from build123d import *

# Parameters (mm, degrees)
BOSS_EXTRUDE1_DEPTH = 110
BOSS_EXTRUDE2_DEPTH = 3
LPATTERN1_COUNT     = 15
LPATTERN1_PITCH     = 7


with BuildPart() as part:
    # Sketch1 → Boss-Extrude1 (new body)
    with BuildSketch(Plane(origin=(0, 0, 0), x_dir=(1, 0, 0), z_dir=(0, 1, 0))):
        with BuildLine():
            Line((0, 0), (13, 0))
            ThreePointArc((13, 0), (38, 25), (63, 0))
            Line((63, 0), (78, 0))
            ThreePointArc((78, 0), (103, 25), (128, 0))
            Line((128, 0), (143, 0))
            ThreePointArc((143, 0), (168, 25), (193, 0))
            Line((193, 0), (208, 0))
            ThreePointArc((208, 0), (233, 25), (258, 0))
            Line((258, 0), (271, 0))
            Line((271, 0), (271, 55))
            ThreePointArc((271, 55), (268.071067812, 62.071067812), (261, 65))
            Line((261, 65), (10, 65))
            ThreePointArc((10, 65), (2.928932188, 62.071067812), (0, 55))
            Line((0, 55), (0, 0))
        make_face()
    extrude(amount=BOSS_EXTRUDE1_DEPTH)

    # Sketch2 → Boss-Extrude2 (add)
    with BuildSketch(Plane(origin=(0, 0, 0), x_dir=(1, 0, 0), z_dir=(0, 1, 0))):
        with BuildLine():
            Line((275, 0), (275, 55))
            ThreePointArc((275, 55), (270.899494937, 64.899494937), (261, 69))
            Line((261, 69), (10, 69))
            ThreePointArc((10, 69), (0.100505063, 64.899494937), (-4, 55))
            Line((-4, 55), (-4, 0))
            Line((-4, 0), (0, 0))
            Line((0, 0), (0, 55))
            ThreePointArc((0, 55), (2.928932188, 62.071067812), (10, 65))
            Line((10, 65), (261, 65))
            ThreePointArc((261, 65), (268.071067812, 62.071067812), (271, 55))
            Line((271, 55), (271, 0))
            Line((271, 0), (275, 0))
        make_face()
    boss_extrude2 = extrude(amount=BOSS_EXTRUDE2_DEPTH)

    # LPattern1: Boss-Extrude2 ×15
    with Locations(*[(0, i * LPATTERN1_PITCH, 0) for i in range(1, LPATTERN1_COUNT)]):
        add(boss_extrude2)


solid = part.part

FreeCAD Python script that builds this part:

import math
import FreeCAD as App
import Part
import Sketcher
from FreeCAD import Vector
Q = App.Units.Quantity

doc = App.newDocument("Part")
body = doc.addObject("PartDesign::Body", "Body")

# Sketch on XZ plane
sketch1 = body.newObject("Sketcher::SketchObject", "Sketch")
sketch1.AttachmentSupport = (doc.getObject("XZ_Plane"), [""])
sketch1.MapMode = "FlatFace"
sketch1.addGeometry([
    Part.LineSegment(Vector(0, 0, 0), Vector(13, 0, 0)),  # 0
    Part.ArcOfCircle(Part.Circle(Vector(38, 0, 0), Vector(0, 0, 1), 25), math.radians(180), math.radians(360)),  # 1
    Part.LineSegment(Vector(63, 0, 0), Vector(78, 0, 0)),  # 2
    Part.ArcOfCircle(Part.Circle(Vector(103, 0, 0), Vector(0, 0, 1), 25), math.radians(180), math.radians(360)),  # 3
    Part.LineSegment(Vector(128, 0, 0), Vector(143, 0, 0)),  # 4
    Part.ArcOfCircle(Part.Circle(Vector(168, 0, 0), Vector(0, 0, 1), 25), math.radians(180), math.radians(360)),  # 5
    Part.LineSegment(Vector(193, 0, 0), Vector(208, 0, 0)),  # 6
    Part.ArcOfCircle(Part.Circle(Vector(233, 0, 0), Vector(0, 0, 1), 25), math.radians(180), math.radians(360)),  # 7
    Part.LineSegment(Vector(258, 0, 0), Vector(271, 0, 0)),  # 8
    Part.LineSegment(Vector(271, 0, 0), Vector(271, -55, 0)),  # 9
    Part.ArcOfCircle(Part.Circle(Vector(261, -55, 0), Vector(0, 0, 1), 10), math.radians(-90), math.radians(0)),  # 10
    Part.LineSegment(Vector(261, -65, 0), Vector(10, -65, 0)),  # 11
    Part.ArcOfCircle(Part.Circle(Vector(10, -55, 0), Vector(0, 0, 1), 10), math.radians(180), math.radians(270)),  # 12
    Part.LineSegment(Vector(0, -55, 0), Vector(0, 0, 0)),  # 13
], False)
sketch1.addConstraint([
    Sketcher.Constraint("Coincident", 0, 2, 1, 1),
    Sketcher.Constraint("Coincident", 1, 2, 2, 1),
    Sketcher.Constraint("Coincident", 2, 2, 3, 1),
    Sketcher.Constraint("Coincident", 3, 2, 4, 1),
    Sketcher.Constraint("Coincident", 4, 2, 5, 1),
    Sketcher.Constraint("Coincident", 5, 2, 6, 1),
    Sketcher.Constraint("Coincident", 6, 2, 7, 1),
    Sketcher.Constraint("Coincident", 7, 2, 8, 1),
    Sketcher.Constraint("Coincident", 8, 2, 9, 1),
    Sketcher.Constraint("Tangent", 9, 2, 10, 2),
    Sketcher.Constraint("Tangent", 10, 1, 11, 1),
    Sketcher.Constraint("Tangent", 11, 2, 12, 2),
    Sketcher.Constraint("Tangent", 12, 1, 13, 1),
    Sketcher.Constraint("Coincident", 13, 2, 0, 1),
    Sketcher.Constraint("Horizontal", 0),
    Sketcher.Constraint("Horizontal", 2),
    Sketcher.Constraint("Horizontal", 4),
    Sketcher.Constraint("Horizontal", 6),
    Sketcher.Constraint("Horizontal", 8),
    Sketcher.Constraint("Vertical", 9),
    Sketcher.Constraint("Horizontal", 11),
    Sketcher.Constraint("Vertical", 13),
    Sketcher.Constraint("Coincident", 13, 2, -1, 1),
    Sketcher.Constraint("Equal", 1, 3),
    Sketcher.Constraint("Equal", 3, 5),
    Sketcher.Constraint("Equal", 5, 7),
    Sketcher.Constraint("Equal", 10, 12),
    Sketcher.Constraint("PointOnObject", 1, 3, -1),
    Sketcher.Constraint("PointOnObject", 3, 3, -1),
    Sketcher.Constraint("PointOnObject", 5, 3, -1),
    Sketcher.Constraint("PointOnObject", 7, 3, -1),
    Sketcher.Constraint("PointOnObject", 1, 2, -1),
    Sketcher.Constraint("PointOnObject", 3, 2, -1),
    Sketcher.Constraint("PointOnObject", 5, 2, -1),
    Sketcher.Constraint("PointOnObject", 7, 2, -1),
    Sketcher.Constraint("Equal", 2, 4),
    Sketcher.Constraint("Equal", 4, 6),
    Sketcher.Constraint("Equal", 0, 8),
    Sketcher.Constraint("Radius", 1, Q("25 mm")),
    Sketcher.Constraint("Radius", 10, Q("10 mm")),
    Sketcher.Constraint("DistanceX", 0, 1, 0, 2, Q("13 mm")),
    Sketcher.Constraint("DistanceX", 2, 1, 2, 2, Q("15 mm")),
    Sketcher.Constraint("DistanceY", 9, 2, 9, 1, Q("55 mm")),
])
pad1 = body.newObject("PartDesign::Pad", "Pad")
pad1.Profile = sketch1
pad1.Length = 110
pad1.Reversed = True

# Sketch on XZ plane
sketch2 = body.newObject("Sketcher::SketchObject", "Sketch001")
sketch2.AttachmentSupport = (doc.getObject("XZ_Plane"), [""])
sketch2.MapMode = "FlatFace"
sketch2.addGeometry([
    Part.LineSegment(Vector(275, 0, 0), Vector(275, -55, 0)),  # 0
    Part.ArcOfCircle(Part.Circle(Vector(261, -55, 0), Vector(0, 0, 1), 14), math.radians(-90), math.radians(0)),  # 1
    Part.LineSegment(Vector(261, -69, 0), Vector(10, -69, 0)),  # 2
    Part.ArcOfCircle(Part.Circle(Vector(10, -55, 0), Vector(0, 0, 1), 14), math.radians(180), math.radians(270)),  # 3
    Part.LineSegment(Vector(-4, -55, 0), Vector(-4, 0, 0)),  # 4
    Part.LineSegment(Vector(-4, 0, 0), Vector(0, 0, 0)),  # 5
    Part.LineSegment(Vector(0, 0, 0), Vector(0, -55, 0)),  # 6
    Part.ArcOfCircle(Part.Circle(Vector(10, -55, 0), Vector(0, 0, 1), 10), math.radians(180), math.radians(270)),  # 7
    Part.LineSegment(Vector(10, -65, 0), Vector(261, -65, 0)),  # 8
    Part.ArcOfCircle(Part.Circle(Vector(261, -55, 0), Vector(0, 0, 1), 10), math.radians(-90), math.radians(0)),  # 9
    Part.LineSegment(Vector(271, -55, 0), Vector(271, 0, 0)),  # 10
    Part.LineSegment(Vector(271, 0, 0), Vector(275, 0, 0)),  # 11
], False)
sketch2.addConstraint([
    Sketcher.Constraint("Tangent", 0, 2, 1, 2),
    Sketcher.Constraint("Tangent", 1, 1, 2, 1),
    Sketcher.Constraint("Tangent", 2, 2, 3, 2),
    Sketcher.Constraint("Tangent", 3, 1, 4, 1),
    Sketcher.Constraint("Coincident", 4, 2, 5, 1),
    Sketcher.Constraint("Coincident", 5, 2, 6, 1),
    Sketcher.Constraint("Tangent", 6, 2, 7, 1),
    Sketcher.Constraint("Tangent", 7, 2, 8, 1),
    Sketcher.Constraint("Tangent", 8, 2, 9, 1),
    Sketcher.Constraint("Tangent", 9, 2, 10, 1),
    Sketcher.Constraint("Coincident", 10, 2, 11, 1),
    Sketcher.Constraint("Coincident", 11, 2, 0, 1),
    Sketcher.Constraint("Vertical", 0),
    Sketcher.Constraint("Horizontal", 2),
    Sketcher.Constraint("Vertical", 4),
    Sketcher.Constraint("Horizontal", 5),
    Sketcher.Constraint("Vertical", 6),
    Sketcher.Constraint("Horizontal", 8),
    Sketcher.Constraint("Vertical", 10),
    Sketcher.Constraint("Horizontal", 11),
    Sketcher.Constraint("Coincident", 5, 2, -1, 1),
    Sketcher.Constraint("Coincident", 7, 3, 3, 3),
    Sketcher.Constraint("Coincident", 9, 3, 1, 3),
    Sketcher.Constraint("Equal", 1, 3),
    Sketcher.Constraint("PointOnObject", 10, 2, -1),
    Sketcher.Constraint("Radius", 1, Q("14 mm")),
    Sketcher.Constraint("Radius", 7, Q("10 mm")),
    Sketcher.Constraint("DistanceX", 2, 2, 2, 1, Q("251 mm")),
    Sketcher.Constraint("DistanceY", 0, 2, 0, 1, Q("55 mm")),
])
pad2 = body.newObject("PartDesign::Pad", "Pad001")
pad2.Profile = sketch2
pad2.Length = 3
pad2.Reversed = True
doc.recompute()

linearpattern = body.newObject("PartDesign::LinearPattern", "LinearPattern")
linearpattern.Originals = [pad2]
linearpattern.Direction = (doc.getObject("Y_Axis"), [""])
linearpattern.Mode = "offset"
linearpattern.Offset = 7
linearpattern.Occurrences = 15
body.Tip = linearpattern

doc.recompute()
